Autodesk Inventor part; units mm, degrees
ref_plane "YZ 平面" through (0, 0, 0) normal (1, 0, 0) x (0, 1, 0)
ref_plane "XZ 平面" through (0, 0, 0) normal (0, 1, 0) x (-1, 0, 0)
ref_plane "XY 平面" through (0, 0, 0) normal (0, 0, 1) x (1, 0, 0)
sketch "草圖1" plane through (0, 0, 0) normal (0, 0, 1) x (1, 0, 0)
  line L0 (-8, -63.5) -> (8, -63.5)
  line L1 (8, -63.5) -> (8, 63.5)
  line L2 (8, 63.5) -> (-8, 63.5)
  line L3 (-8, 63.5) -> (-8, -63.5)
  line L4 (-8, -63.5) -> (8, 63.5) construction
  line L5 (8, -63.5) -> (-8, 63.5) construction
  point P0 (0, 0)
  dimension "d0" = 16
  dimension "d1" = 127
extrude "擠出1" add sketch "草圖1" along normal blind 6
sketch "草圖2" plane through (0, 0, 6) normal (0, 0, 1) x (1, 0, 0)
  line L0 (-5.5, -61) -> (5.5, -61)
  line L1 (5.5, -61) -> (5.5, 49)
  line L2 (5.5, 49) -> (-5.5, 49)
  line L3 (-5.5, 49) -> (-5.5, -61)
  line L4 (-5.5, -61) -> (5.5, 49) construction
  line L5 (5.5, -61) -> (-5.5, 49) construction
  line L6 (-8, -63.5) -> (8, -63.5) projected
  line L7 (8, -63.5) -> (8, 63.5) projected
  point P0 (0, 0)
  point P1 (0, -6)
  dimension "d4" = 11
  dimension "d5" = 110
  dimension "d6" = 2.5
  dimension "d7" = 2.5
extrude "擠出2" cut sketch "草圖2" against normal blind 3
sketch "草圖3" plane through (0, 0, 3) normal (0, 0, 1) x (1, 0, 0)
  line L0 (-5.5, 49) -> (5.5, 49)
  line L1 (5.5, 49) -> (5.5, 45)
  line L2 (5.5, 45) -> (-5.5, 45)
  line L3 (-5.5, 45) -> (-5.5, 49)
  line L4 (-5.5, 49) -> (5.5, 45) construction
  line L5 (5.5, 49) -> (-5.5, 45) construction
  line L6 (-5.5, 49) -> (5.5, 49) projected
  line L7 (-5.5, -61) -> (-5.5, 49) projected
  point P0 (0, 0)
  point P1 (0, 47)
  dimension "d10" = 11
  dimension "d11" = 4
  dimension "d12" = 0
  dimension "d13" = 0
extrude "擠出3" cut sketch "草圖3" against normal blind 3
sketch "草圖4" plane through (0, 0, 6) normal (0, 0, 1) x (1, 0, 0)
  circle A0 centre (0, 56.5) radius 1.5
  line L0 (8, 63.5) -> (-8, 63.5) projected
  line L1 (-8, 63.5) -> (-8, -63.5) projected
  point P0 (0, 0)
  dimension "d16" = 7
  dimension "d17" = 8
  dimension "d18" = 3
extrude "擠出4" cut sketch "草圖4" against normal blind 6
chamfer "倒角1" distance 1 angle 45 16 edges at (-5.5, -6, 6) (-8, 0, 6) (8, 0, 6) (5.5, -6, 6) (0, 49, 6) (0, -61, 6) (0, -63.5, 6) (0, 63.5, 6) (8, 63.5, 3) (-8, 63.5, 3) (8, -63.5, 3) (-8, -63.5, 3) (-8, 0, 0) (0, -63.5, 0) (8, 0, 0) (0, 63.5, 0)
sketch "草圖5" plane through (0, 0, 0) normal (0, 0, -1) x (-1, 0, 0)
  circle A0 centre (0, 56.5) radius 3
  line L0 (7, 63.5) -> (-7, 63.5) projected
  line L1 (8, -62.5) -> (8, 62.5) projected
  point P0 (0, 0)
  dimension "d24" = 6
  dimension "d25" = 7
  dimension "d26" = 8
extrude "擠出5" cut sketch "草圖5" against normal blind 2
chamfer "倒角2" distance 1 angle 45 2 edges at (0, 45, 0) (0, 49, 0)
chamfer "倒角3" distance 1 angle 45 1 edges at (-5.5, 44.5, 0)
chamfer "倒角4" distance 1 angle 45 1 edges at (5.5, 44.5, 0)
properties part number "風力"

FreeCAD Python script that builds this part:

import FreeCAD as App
import Part
import Sketcher

V = App.Vector
Q = App.Units.Quantity


def edges_at(feature, points):
    """Names of the edges that pass closest to the given points."""
    edges = feature.Shape.Edges
    near = lambda p: min(range(len(edges)), key=lambda i: edges[i].distToShape(Part.Vertex(*p))[0])
    return sorted({f"Edge{near(p) + 1}" for p in points})

doc = App.newDocument("Part")
body = doc.addObject("PartDesign::Body", "Body")

sketch1 = doc.addObject("Sketcher::SketchObject", "Sketch")
body.addObject(sketch1)
sketch1.AttachmentSupport = (doc.XY_Plane, [""])
sketch1.MapMode = "FlatFace"
sketch1.addGeometry([
    Part.LineSegment(V(-8, 63.5, 0), V(-8, -63.5, 0)),
    Part.LineSegment(V(-8, -63.5, 0), V(8, -63.5, 0)),
    Part.LineSegment(V(8, -63.5, 0), V(8, 63.5, 0)),
    Part.LineSegment(V(8, 63.5, 0), V(-8, 63.5, 0)),
], False)
sketch1.addConstraint([
    Sketcher.Constraint("Coincident", 0, 2, 1, 1),
    Sketcher.Constraint("Coincident", 1, 2, 2, 1),
    Sketcher.Constraint("Coincident", 2, 2, 3, 1),
    Sketcher.Constraint("Coincident", 3, 2, 0, 1),
    Sketcher.Constraint("Vertical", 0),
    Sketcher.Constraint("Horizontal", 1),
    Sketcher.Constraint("Vertical", 2),
    Sketcher.Constraint("Horizontal", 3),
    Sketcher.Constraint("Symmetric", 0, 2, 2, 2, -1, 1),
    Sketcher.Constraint("DistanceX", 1, 1, 1, 2, Q("16 mm")),
    Sketcher.Constraint("DistanceY", 0, 2, 0, 1, Q("127 mm")),
])
pad1 = doc.addObject("PartDesign::Pad", "Pad")
body.addObject(pad1)
pad1.Profile = sketch1
pad1.Length = 6

sketch2 = doc.addObject("Sketcher::SketchObject", "Sketch001")
body.addObject(sketch2)
sketch2.AttachmentSupport = (doc.XY_Plane, [""])
sketch2.MapMode = "FlatFace"
sketch2.AttachmentOffset = App.Placement(V(0, 0, 6), App.Rotation())
sketch2.addGeometry([
    Part.LineSegment(V(-5.5, 49, 0), V(-5.5, -61, 0)),
    Part.LineSegment(V(-5.5, -61, 0), V(5.5, -61, 0)),
    Part.LineSegment(V(5.5, -61, 0), V(5.5, 49, 0)),
    Part.LineSegment(V(5.5, 49, 0), V(-5.5, 49, 0)),
], False)
sketch2.addConstraint([
    Sketcher.Constraint("Coincident", 0, 2, 1, 1),
    Sketcher.Constraint("Coincident", 1, 2, 2, 1),
    Sketcher.Constraint("Coincident", 2, 2, 3, 1),
    Sketcher.Constraint("Coincident", 3, 2, 0, 1),
    Sketcher.Constraint("Vertical", 0),
    Sketcher.Constraint("Horizontal", 1),
    Sketcher.Constraint("Vertical", 2),
    Sketcher.Constraint("Horizontal", 3),
    Sketcher.Constraint("DistanceX", 1, 1, 1, 2, Q("11 mm")),
    Sketcher.Constraint("DistanceY", 0, 2, 0, 1, Q("110 mm")),
    Sketcher.Constraint("DistanceY", 0, 2, -1, 1, Q("61 mm")),
    Sketcher.Constraint("DistanceX", 0, 2, -1, 1, Q("5.5 mm")),
])
pocket1 = doc.addObject("PartDesign::Pocket", "Pocket")
body.addObject(pocket1)
pocket1.Profile = sketch2
pocket1.Length = 3

sketch3 = doc.addObject("Sketcher::SketchObject", "Sketch002")
body.addObject(sketch3)
sketch3.AttachmentSupport = (doc.XY_Plane, [""])
sketch3.MapMode = "FlatFace"
sketch3.AttachmentOffset = App.Placement(V(0, 0, 3), App.Rotation())
sketch3.addGeometry([
    Part.LineSegment(V(5.5, 49, 0), V(-5.5, 49, 0)),
    Part.LineSegment(V(-5.5, 49, 0), V(-5.5, 45, 0)),
    Part.LineSegment(V(-5.5, 45, 0), V(5.5, 45, 0)),
    Part.LineSegment(V(5.5, 45, 0), V(5.5, 49, 0)),
], False)
sketch3.addConstraint([
    Sketcher.Constraint("Coincident", 0, 2, 1, 1),
    Sketcher.Constraint("Coincident", 1, 2, 2, 1),
    Sketcher.Constraint("Coincident", 2, 2, 3, 1),
    Sketcher.Constraint("Coincident", 3, 2, 0, 1),
    Sketcher.Constraint("Horizontal", 0),
    Sketcher.Constraint("Vertical", 1),
    Sketcher.Constraint("Horizontal", 2),
    Sketcher.Constraint("Vertical", 3),
    Sketcher.Constraint("DistanceX", 0, 2, 0, 1, Q("11 mm")),
    Sketcher.Constraint("DistanceY", 1, 2, 1, 1, Q("4 mm")),
    Sketcher.Constraint("DistanceY", -1, 1, 0, 2, Q("49 mm")),
    Sketcher.Constraint("DistanceX", 0, 2, -1, 1, Q("5.5 mm")),
])
pocket2 = doc.addObject("PartDesign::Pocket", "Pocket001")
body.addObject(pocket2)
pocket2.Profile = sketch3
pocket2.Length = 3

sketch4 = doc.addObject("Sketcher::SketchObject", "Sketch003")
body.addObject(sketch4)
sketch4.AttachmentSupport = (doc.XY_Plane, [""])
sketch4.MapMode = "FlatFace"
sketch4.AttachmentOffset = App.Placement(V(0, 0, 6), App.Rotation())
sketch4.addGeometry(Part.Circle(V(0, 56.5, 0), V(0, 0, 1), 1.5), False)
sketch4.addConstraint([
    Sketcher.Constraint("PointOnObject", 0, 3, -2),
    Sketcher.Constraint("Diameter", 0, Q("3 mm")),
    Sketcher.Constraint("DistanceY", -1, 1, 0, 3, Q("56.5 mm")),
])
pocket3 = doc.addObject("PartDesign::Pocket", "Pocket002")
body.addObject(pocket3)
pocket3.Profile = sketch4
pocket3.Length = 6
doc.recompute()

chamfer = doc.addObject("PartDesign::Chamfer", "Chamfer")
body.addObject(chamfer)
chamfer.Base = (pocket3, edges_at(pocket3, [
    (-5.5, -6, 6),
    (-8, 0, 6),
    (8, 0, 6),
    (5.5, -6, 6),
    (0, 49, 6),
    (0, -61, 6),
    (0, -63.5, 6),
    (0, 63.5, 6),
    (8, 63.5, 3),
    (-8, 63.5, 3),
    (8, -63.5, 3),
    (-8, -63.5, 3),
    (-8, 0, 0),
    (0, -63.5, 0),
    (8, 0, 0),
    (0, 63.5, 0),
]))
chamfer.Size = 1

sketch5 = doc.addObject("Sketcher::SketchObject", "Sketch004")
body.addObject(sketch5)
sketch5.AttachmentSupport = (doc.XY_Plane, [""])
sketch5.MapMode = "FlatFace"
sketch5.addGeometry(Part.Circle(V(0, 56.5, 0), V(0, 0, 1), 3), False)
sketch5.addConstraint([
    Sketcher.Constraint("PointOnObject", 0, 3, -2),
    Sketcher.Constraint("Diameter", 0, Q("6 mm")),
    Sketcher.Constraint("DistanceY", -1, 1, 0, 3, Q("56.5 mm")),
])
pocket4 = doc.addObject("PartDesign::Pocket", "Pocket003")
body.addObject(pocket4)
pocket4.Profile = sketch5
pocket4.Length = 2
pocket4.Reversed = True
doc.recompute()

chamfer2 = doc.addObject("PartDesign::Chamfer", "Chamfer001")
body.addObject(chamfer2)
chamfer2.Base = (pocket4, edges_at(pocket4, [(0, 45, 0), (0, 49, 0)]))
chamfer2.Size = 1
doc.recompute()

chamfer3 = doc.addObject("PartDesign::Chamfer", "Chamfer002")
body.addObject(chamfer3)
chamfer3.Base = (chamfer2, edges_at(chamfer2, [(-5.5, 44.5, 0)]))
chamfer3.Size = 1
doc.recompute()

chamfer4 = doc.addObject("PartDesign::Chamfer", "Chamfer003")
body.addObject(chamfer4)
chamfer4.Base = (chamfer3, edges_at(chamfer3, [(5.5, 44.5, 0)]))
chamfer4.Size = 1

doc.recompute()
